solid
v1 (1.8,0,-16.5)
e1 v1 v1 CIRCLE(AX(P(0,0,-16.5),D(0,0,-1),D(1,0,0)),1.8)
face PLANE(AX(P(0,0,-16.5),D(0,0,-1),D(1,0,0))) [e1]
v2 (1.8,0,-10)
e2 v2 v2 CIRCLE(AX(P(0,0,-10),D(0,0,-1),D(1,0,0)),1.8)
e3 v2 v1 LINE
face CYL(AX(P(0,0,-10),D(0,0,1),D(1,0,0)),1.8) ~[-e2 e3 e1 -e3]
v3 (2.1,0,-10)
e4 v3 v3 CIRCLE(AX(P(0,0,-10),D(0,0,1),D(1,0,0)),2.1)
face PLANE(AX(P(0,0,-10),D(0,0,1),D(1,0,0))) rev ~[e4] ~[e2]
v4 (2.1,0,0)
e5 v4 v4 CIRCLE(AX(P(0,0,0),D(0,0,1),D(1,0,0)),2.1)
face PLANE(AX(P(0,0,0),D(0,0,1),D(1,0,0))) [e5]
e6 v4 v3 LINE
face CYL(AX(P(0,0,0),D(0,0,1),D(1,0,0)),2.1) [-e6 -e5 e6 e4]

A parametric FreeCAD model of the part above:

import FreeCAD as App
import Part
import Sketcher
from FreeCAD import Vector

doc = App.newDocument("Part")
body = doc.addObject("PartDesign::Body", "Body")

sketch1 = body.newObject("Sketcher::SketchObject", "Sketch")
sketch1.AttachmentSupport = (doc.getObject("XY_Plane"), [""])
sketch1.MapMode = "FlatFace"
sketch1.addGeometry(Part.Circle(Vector(0, 0, 0), Vector(0, 0, 1), 2.1), False)
sketch1.addConstraint(Sketcher.Constraint("Coincident", 0, 3, -1, 1))
sketch1.addConstraint(Sketcher.Constraint("Diameter", 0, 4.2))
pad1 = body.newObject("PartDesign::Pad", "Pad")
pad1.Profile = sketch1
pad1.Length = 10
pad1.Reversed = True

sketch2 = body.newObject("Sketcher::SketchObject", "Sketch001")
sketch2.AttachmentSupport = (doc.getObject("XY_Plane"), [""])
sketch2.MapMode = "FlatFace"
sketch2.AttachmentOffset = App.Placement(Vector(0, 0, -10), App.Rotation())
sketch2.addGeometry(Part.Circle(Vector(0, 0, 0), Vector(0, 0, 1), 1.8), False)
sketch2.addConstraint(Sketcher.Constraint("Coincident", 0, 3, -1, 1))
sketch2.addConstraint(Sketcher.Constraint("Diameter", 0, 3.6))
pad2 = body.newObject("PartDesign::Pad", "Pad001")
pad2.Profile = sketch2
pad2.Length = 6.5
pad2.Reversed = True

doc.recompute()
